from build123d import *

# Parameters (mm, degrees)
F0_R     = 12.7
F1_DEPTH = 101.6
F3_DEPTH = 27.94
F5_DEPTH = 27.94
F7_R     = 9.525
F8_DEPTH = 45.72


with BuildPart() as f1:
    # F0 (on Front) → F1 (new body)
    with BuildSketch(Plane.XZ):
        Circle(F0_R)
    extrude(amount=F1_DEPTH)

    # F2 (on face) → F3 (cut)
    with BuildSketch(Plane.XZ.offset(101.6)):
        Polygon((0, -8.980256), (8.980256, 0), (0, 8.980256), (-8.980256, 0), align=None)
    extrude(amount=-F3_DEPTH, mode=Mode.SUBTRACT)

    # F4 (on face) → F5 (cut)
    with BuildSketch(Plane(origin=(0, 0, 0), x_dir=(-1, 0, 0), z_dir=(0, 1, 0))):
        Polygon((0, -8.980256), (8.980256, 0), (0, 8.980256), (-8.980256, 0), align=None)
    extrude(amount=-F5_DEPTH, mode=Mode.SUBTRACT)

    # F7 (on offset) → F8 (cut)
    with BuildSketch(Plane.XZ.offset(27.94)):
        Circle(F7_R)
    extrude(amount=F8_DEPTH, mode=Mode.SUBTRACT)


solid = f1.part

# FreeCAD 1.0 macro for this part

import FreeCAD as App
import Part
import Sketcher

V = App.Vector
Q = App.Units.Quantity

doc = App.newDocument("Part")
body = doc.addObject("PartDesign::Body", "Body")

# Sketch on XZ plane
sketch1 = body.newObject("Sketcher::SketchObject", "Sketch")
sketch1.AttachmentSupport = (doc.getObject("XZ_Plane"), [""])
sketch1.MapMode = "FlatFace"
sketch1.addGeometry(Part.Circle(V(0, 0, 0), V(0, 0, 1), 12.7), False)
sketch1.addConstraint([
    Sketcher.Constraint("Coincident", 0, 3, -1, 1),
    Sketcher.Constraint("Diameter", 0, Q("1 in")),
])
pad1 = body.newObject("PartDesign::Pad", "Pad")
pad1.Profile = sketch1
pad1.Length = Q("4 in")

# Sketch on XZ plane
sketch2 = body.newObject("Sketcher::SketchObject", "Sketch001")
sketch2.AttachmentSupport = (doc.getObject("XZ_Plane"), [""])
sketch2.MapMode = "FlatFace"
sketch2.AttachmentOffset = App.Placement(V(0, 0, 4 * 25.4), App.Rotation())
sketch2.addGeometry([
    Part.LineSegment(V(0, -8.980256, 0), V(8.980256, 0, 0)),
    Part.LineSegment(V(8.980256, 0, 0), V(0, 8.980256, 0)),
    Part.LineSegment(V(0, 8.980256, 0), V(-8.980256, 0, 0)),
    Part.LineSegment(V(-8.980256, 0, 0), V(0, -8.980256, 0)),
], False)
sketch2.addConstraint([
    Sketcher.Constraint("Coincident", 0, 2, 1, 1),
    Sketcher.Constraint("Coincident", 1, 2, 2, 1),
    Sketcher.Constraint("Coincident", 2, 2, 3, 1),
    Sketcher.Constraint("Coincident", 3, 2, 0, 1),
    Sketcher.Constraint("Symmetric", 0, 2, 2, 2, -1, 1),
    Sketcher.Constraint("Symmetric", 1, 2, 3, 2, -1, 1),
    Sketcher.Constraint("PointOnObject", 0, 2, -1),
    Sketcher.Constraint("PointOnObject", 1, 2, -2),
    Sketcher.Constraint("Perpendicular", 0, 1),
    Sketcher.Constraint("Distance", 0, Q("0.5 in")),
])
pocket1 = body.newObject("PartDesign::Pocket", "Pocket")
pocket1.Profile = sketch2
pocket1.Length = Q("1.1 in")

# Sketch on XZ plane
sketch3 = body.newObject("Sketcher::SketchObject", "Sketch002")
sketch3.AttachmentSupport = (doc.getObject("XZ_Plane"), [""])
sketch3.MapMode = "FlatFace"
sketch3.addGeometry([
    Part.LineSegment(V(0, -8.980256, 0), V(-8.980256, 0, 0)),
    Part.LineSegment(V(-8.980256, 0, 0), V(0, 8.980256, 0)),
    Part.LineSegment(V(0, 8.980256, 0), V(8.980256, 0, 0)),
    Part.LineSegment(V(8.980256, 0, 0), V(0, -8.980256, 0)),
], False)
sketch3.addConstraint([
    Sketcher.Constraint("Coincident", 0, 2, 1, 1),
    Sketcher.Constraint("Coincident", 1, 2, 2, 1),
    Sketcher.Constraint("Coincident", 2, 2, 3, 1),
    Sketcher.Constraint("Coincident", 3, 2, 0, 1),
    Sketcher.Constraint("Symmetric", 0, 2, 2, 2, -1, 1),
    Sketcher.Constraint("Symmetric", 1, 2, 3, 2, -1, 1),
    Sketcher.Constraint("PointOnObject", 0, 2, -1),
    Sketcher.Constraint("PointOnObject", 1, 2, -2),
    Sketcher.Constraint("Perpendicular", 0, 1),
    Sketcher.Constraint("Distance", 0, Q("0.5 in")),
])
pocket2 = body.newObject("PartDesign::Pocket", "Pocket001")
pocket2.Profile = sketch3
pocket2.Length = Q("1.1 in")
pocket2.Reversed = True

# Sketch on XZ plane
sketch4 = body.newObject("Sketcher::SketchObject", "Sketch003")
sketch4.AttachmentSupport = (doc.getObject("XZ_Plane"), [""])
sketch4.MapMode = "FlatFace"
sketch4.AttachmentOffset = App.Placement(V(0, 0, 1.1 * 25.4), App.Rotation())
sketch4.addGeometry(Part.Circle(V(0, 0, 0), V(0, 0, 1), 9.525), False)
sketch4.addConstraint([
    Sketcher.Constraint("Coincident", 0, 3, -1, 1),
    Sketcher.Constraint("Diameter", 0, Q("0.75 in")),
])
pocket3 = body.newObject("PartDesign::Pocket", "Pocket002")
pocket3.Profile = sketch4
pocket3.Length = Q("1.8 in")
pocket3.Reversed = True

doc.recompute()
